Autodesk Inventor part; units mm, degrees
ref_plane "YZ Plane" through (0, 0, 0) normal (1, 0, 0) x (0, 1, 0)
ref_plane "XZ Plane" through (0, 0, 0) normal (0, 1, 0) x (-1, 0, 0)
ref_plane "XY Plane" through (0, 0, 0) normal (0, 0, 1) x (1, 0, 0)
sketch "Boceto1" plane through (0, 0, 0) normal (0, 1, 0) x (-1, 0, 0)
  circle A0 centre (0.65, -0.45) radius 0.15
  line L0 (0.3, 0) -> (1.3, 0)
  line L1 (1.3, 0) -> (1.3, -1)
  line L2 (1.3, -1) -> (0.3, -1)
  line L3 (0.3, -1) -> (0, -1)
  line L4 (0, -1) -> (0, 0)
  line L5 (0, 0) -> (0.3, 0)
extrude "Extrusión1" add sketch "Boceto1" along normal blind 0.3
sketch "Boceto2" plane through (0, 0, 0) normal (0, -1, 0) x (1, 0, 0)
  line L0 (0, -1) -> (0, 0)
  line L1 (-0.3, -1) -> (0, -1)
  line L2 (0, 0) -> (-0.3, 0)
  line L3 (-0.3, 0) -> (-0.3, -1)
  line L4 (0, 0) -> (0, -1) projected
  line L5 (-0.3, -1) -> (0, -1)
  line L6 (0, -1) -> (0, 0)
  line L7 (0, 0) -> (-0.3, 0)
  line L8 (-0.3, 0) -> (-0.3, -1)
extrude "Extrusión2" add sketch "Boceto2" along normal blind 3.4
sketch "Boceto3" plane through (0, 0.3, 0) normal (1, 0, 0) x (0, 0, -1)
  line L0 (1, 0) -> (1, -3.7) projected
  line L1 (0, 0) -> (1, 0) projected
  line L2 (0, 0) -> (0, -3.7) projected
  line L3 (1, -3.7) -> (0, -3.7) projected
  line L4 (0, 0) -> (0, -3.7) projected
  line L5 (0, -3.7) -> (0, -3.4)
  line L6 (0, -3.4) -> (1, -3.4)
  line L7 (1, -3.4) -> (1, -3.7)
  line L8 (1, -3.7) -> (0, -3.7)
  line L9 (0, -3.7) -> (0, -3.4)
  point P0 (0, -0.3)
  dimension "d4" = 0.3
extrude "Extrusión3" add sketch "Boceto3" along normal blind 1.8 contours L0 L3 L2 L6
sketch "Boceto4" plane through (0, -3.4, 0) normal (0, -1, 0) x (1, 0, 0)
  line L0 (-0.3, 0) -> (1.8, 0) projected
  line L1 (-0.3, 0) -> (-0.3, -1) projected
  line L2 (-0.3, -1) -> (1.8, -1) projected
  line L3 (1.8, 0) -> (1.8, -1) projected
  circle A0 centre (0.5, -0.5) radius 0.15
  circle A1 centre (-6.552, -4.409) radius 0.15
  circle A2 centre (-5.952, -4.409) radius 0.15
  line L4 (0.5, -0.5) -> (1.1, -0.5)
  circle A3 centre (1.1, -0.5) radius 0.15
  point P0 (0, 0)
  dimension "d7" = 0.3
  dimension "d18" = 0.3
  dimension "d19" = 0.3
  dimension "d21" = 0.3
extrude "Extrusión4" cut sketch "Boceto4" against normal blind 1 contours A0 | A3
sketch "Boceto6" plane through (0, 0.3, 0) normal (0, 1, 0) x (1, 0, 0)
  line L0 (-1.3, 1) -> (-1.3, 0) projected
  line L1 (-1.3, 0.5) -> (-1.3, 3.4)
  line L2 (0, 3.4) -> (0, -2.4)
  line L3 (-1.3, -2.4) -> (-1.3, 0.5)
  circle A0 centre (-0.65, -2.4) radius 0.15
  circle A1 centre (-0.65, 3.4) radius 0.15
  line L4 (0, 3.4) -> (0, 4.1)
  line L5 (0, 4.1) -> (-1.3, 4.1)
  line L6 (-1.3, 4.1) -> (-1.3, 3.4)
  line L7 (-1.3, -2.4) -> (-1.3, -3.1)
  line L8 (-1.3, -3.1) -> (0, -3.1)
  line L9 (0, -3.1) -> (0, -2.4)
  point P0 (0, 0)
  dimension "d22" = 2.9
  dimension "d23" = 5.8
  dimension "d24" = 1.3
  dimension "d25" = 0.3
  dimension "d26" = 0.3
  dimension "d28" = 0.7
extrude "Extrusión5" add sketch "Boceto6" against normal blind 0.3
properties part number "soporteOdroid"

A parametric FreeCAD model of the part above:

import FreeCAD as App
import Part
import Sketcher
from FreeCAD import Vector


def add_polygon(sketch, points):
    """Adds a closed chain of lines whose ends are joined by coincident constraints."""
    first, n = sketch.GeometryCount, len(points)
    for a, b in zip(points, points[1:] + points[:1]):
        sketch.addGeometry(Part.LineSegment(App.Vector(*a, 0), App.Vector(*b, 0)), False)
    for i in range(n):
        sketch.addConstraint(Sketcher.Constraint("Coincident", first + i, 2, first + (i + 1) % n, 1))

doc = App.newDocument("Part")
body = doc.addObject("PartDesign::Body", "Body")

sketch1 = body.newObject("Sketcher::SketchObject", "Sketch")
sketch1.AttachmentSupport = (doc.getObject("XZ_Plane"), [""])
sketch1.MapMode = "FlatFace"
add_polygon(sketch1, [(-1.3, 0), (0, 0), (0, -1), (-1.3, -1)])
sketch1.addGeometry(Part.Circle(Vector(-0.65, -0.45, 0), Vector(0, 0, 1), 0.15), False)
sketch1.addConstraint([
    Sketcher.Constraint("Horizontal", 0),
    Sketcher.Constraint("Vertical", 1),
    Sketcher.Constraint("Horizontal", 2),
    Sketcher.Constraint("Vertical", 3),
    Sketcher.Constraint("Coincident", 0, 2, -1, 1),
    Sketcher.Constraint("Diameter", 4, 0.3),
    Sketcher.Constraint("DistanceY", 1, 2, 1, 1, 1.0),
    Sketcher.Constraint("DistanceX", 0, 1, 0, 2, 1.3),
    Sketcher.Constraint("DistanceX", 4, 3, -1, 1, 0.65),
    Sketcher.Constraint("DistanceY", 4, 3, -1, 1, 0.45),
])
pad1 = body.newObject("PartDesign::Pad", "Pad")
pad1.Profile = sketch1
pad1.Length = 0.3
pad1.Reversed = True

sketch2 = body.newObject("Sketcher::SketchObject", "Sketch001")
sketch2.AttachmentSupport = (doc.getObject("XZ_Plane"), [""])
sketch2.MapMode = "FlatFace"
add_polygon(sketch2, [(-0.3, -1), (0, -1), (0, 0), (-0.3, 0)])
sketch2.addConstraint([
    Sketcher.Constraint("Horizontal", 0),
    Sketcher.Constraint("Vertical", 1),
    Sketcher.Constraint("Horizontal", 2),
    Sketcher.Constraint("Vertical", 3),
    Sketcher.Constraint("Coincident", 1, 2, -1, 1),
    Sketcher.Constraint("DistanceY", 1, 1, 1, 2, 1.0),
    Sketcher.Constraint("DistanceX", 0, 1, 0, 2, 0.3),
])
pad2 = body.newObject("PartDesign::Pad", "Pad001")
pad2.Profile = sketch2
pad2.Length = 3.4

sketch3 = body.newObject("Sketcher::SketchObject", "Sketch002")
sketch3.AttachmentSupport = (doc.getObject("YZ_Plane"), [""])
sketch3.MapMode = "FlatFace"
add_polygon(sketch3, [(-3.4, -1), (-3.1, -1), (-3.1, 0), (-3.4, 0)])
sketch3.addConstraint([
    Sketcher.Constraint("Horizontal", 0),
    Sketcher.Constraint("Vertical", 1),
    Sketcher.Constraint("Horizontal", 2),
    Sketcher.Constraint("Vertical", 3),
    Sketcher.Constraint("PointOnObject", 1, 2, -1),
    Sketcher.Constraint("DistanceX", 0, 1, 0, 2, 0.3),
    Sketcher.Constraint("DistanceY", 1, 1, 1, 2, 1.0),
    Sketcher.Constraint("DistanceX", 0, 2, -1, 1, 3.1),
])
pad3 = body.newObject("PartDesign::Pad", "Pad002")
pad3.Profile = sketch3
pad3.Length = 1.8

sketch4 = body.newObject("Sketcher::SketchObject", "Sketch003")
sketch4.AttachmentSupport = (doc.getObject("XZ_Plane"), [""])
sketch4.MapMode = "FlatFace"
sketch4.AttachmentOffset = App.Placement(Vector(0, 0, 3.4), App.Rotation())
sketch4.addGeometry([
    Part.Circle(Vector(0.5, -0.5, 0), Vector(0, 0, 1), 0.15),
    Part.Circle(Vector(1.1, -0.5, 0), Vector(0, 0, 1), 0.15),
], False)
sketch4.addConstraint([
    Sketcher.Constraint("Equal", 0, 1),
    Sketcher.Constraint("Horizontal", 0, 3, 1, 3),
    Sketcher.Constraint("Diameter", 0, 0.3),
    Sketcher.Constraint("DistanceX", -1, 1, 0, 3, 0.5),
    Sketcher.Constraint("DistanceY", 0, 3, -1, 1, 0.5),
    Sketcher.Constraint("DistanceX", -1, 1, 1, 3, 1.1),
])
pocket1 = body.newObject("PartDesign::Pocket", "Pocket")
pocket1.Profile = sketch4
pocket1.Length = 1

sketch5 = body.newObject("Sketcher::SketchObject", "Sketch004")
sketch5.AttachmentSupport = (doc.getObject("XZ_Plane"), [""])
sketch5.MapMode = "FlatFace"
sketch5.AttachmentOffset = App.Placement(Vector(0, 0, -0.3), App.Rotation())
add_polygon(sketch5, [(-1.3, -4.1), (-1.3, 3.1), (0, 3.1), (0, -4.1)])
sketch5.addGeometry(Part.Circle(Vector(-0.65, 2.4, 0), Vector(0, 0, 1), 0.15), False)
sketch5.addGeometry(Part.Circle(Vector(-0.65, -3.4, 0), Vector(0, 0, 1), 0.15), False)
sketch5.addConstraint([
    Sketcher.Constraint("Vertical", 0),
    Sketcher.Constraint("Horizontal", 1),
    Sketcher.Constraint("Vertical", 2),
    Sketcher.Constraint("Horizontal", 3),
    Sketcher.Constraint("Equal", 4, 5),
    Sketcher.Constraint("PointOnObject", 1, 2, -2),
    Sketcher.Constraint("Vertical", 4, 3, 5, 3),
    Sketcher.Constraint("Diameter", 4, 0.3),
    Sketcher.Constraint("DistanceX", 1, 1, 1, 2, 1.3),
    Sketcher.Constraint("DistanceY", 5, 3, 4, 3, 5.8),
    Sketcher.Constraint("DistanceY", 4, 3, 0, 2, 0.7),
    Sketcher.Constraint("DistanceY", 2, 2, 5, 3, 0.7),
    Sketcher.Constraint("DistanceY", -1, 1, 4, 3, 2.4),
    Sketcher.Constraint("DistanceX", 4, 3, -1, 1, 0.65),
])
pad4 = body.newObject("PartDesign::Pad", "Pad003")
pad4.Profile = sketch5
pad4.Length = 0.3

doc.recompute()
